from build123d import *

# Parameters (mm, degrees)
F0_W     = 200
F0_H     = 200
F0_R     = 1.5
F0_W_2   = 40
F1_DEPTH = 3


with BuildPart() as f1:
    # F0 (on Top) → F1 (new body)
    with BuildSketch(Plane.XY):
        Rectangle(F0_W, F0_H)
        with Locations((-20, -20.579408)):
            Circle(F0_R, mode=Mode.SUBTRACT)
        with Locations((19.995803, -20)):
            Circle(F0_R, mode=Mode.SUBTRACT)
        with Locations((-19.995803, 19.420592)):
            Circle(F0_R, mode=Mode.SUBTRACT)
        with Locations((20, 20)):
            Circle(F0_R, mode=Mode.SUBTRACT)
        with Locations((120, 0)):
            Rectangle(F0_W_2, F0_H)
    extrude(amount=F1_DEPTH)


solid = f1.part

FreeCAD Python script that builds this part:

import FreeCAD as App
import Part
import Sketcher

V = App.Vector

doc = App.newDocument("Part")
body = doc.addObject("PartDesign::Body", "Body")

# Sketch on XY plane
sketch1 = doc.addObject("Sketcher::SketchObject", "Sketch")
body.addObject(sketch1)
sketch1.AttachmentSupport = (doc.XY_Plane, [""])
sketch1.MapMode = "FlatFace"
sketch1.addGeometry(Part.LineSegment(V(-100, 100, 0), V(-100, -100, 0)), False)
sketch1.addGeometry(Part.LineSegment(V(-100, -100, 0), V(140, -100, 0)), False)
sketch1.addGeometry(Part.LineSegment(V(140, -100, 0), V(140, 100, 0)), False)
sketch1.addGeometry(Part.LineSegment(V(140, 100, 0), V(-100, 100, 0)), False)
sketch1.addGeometry(Part.Circle(V(-20, -20.6, 0), V(0, 0, 1), 1.5), False)
sketch1.addGeometry(Part.Circle(V(20, -20, 0), V(0, 0, 1), 1.5), False)
sketch1.addGeometry(Part.Circle(V(-20, 19.4, 0), V(0, 0, 1), 1.5), False)
sketch1.addGeometry(Part.Circle(V(20, 20, 0), V(0, 0, 1), 1.5), False)
sketch1.addConstraint(Sketcher.Constraint("Coincident", 0, 2, 1, 1))
sketch1.addConstraint(Sketcher.Constraint("Coincident", 1, 2, 2, 1))
sketch1.addConstraint(Sketcher.Constraint("Coincident", 2, 2, 3, 1))
sketch1.addConstraint(Sketcher.Constraint("Coincident", 3, 2, 0, 1))
sketch1.addConstraint(Sketcher.Constraint("Vertical", 0))
sketch1.addConstraint(Sketcher.Constraint("Horizontal", 1))
sketch1.addConstraint(Sketcher.Constraint("Vertical", 2))
sketch1.addConstraint(Sketcher.Constraint("Horizontal", 3))
sketch1.addConstraint(Sketcher.Constraint("Equal", 4, 5))
sketch1.addConstraint(Sketcher.Constraint("Equal", 5, 6))
sketch1.addConstraint(Sketcher.Constraint("Equal", 6, 7))
sketch1.addConstraint(Sketcher.Constraint("Diameter", 4, 3.0))
sketch1.addConstraint(Sketcher.Constraint("DistanceX", 1, 1, 1, 2, 240.0))
sketch1.addConstraint(Sketcher.Constraint("DistanceY", 0, 2, 0, 1, 200.0))
sketch1.addConstraint(Sketcher.Constraint("DistanceX", 4, 3, -1, 1, 20.0))
sketch1.addConstraint(Sketcher.Constraint("DistanceY", 5, 3, -1, 1, 20.0))
sketch1.addConstraint(Sketcher.Constraint("DistanceX", -1, 1, 7, 3, 20.0))
sketch1.addConstraint(Sketcher.Constraint("DistanceY", -1, 1, 7, 3, 20.0))
sketch1.addConstraint(Sketcher.Constraint("DistanceX", 0, 2, -1, 1, 100.0))
sketch1.addConstraint(Sketcher.Constraint("DistanceY", 0, 2, -1, 1, 100.0))
sketch1.addConstraint(Sketcher.Constraint("DistanceY", 4, 3, 6, 3, 40.0))
sketch1.addConstraint(Sketcher.Constraint("DistanceY", 4, 3, -1, 1, 20.579408))
sketch1.addConstraint(Sketcher.Constraint("DistanceX", -1, 1, 5, 3, 19.995803))
sketch1.addConstraint(Sketcher.Constraint("DistanceX", 6, 3, -1, 1, 19.995803))
pad1 = doc.addObject("PartDesign::Pad", "Pad")
body.addObject(pad1)
pad1.Profile = sketch1
pad1.Length = 3

doc.recompute()
